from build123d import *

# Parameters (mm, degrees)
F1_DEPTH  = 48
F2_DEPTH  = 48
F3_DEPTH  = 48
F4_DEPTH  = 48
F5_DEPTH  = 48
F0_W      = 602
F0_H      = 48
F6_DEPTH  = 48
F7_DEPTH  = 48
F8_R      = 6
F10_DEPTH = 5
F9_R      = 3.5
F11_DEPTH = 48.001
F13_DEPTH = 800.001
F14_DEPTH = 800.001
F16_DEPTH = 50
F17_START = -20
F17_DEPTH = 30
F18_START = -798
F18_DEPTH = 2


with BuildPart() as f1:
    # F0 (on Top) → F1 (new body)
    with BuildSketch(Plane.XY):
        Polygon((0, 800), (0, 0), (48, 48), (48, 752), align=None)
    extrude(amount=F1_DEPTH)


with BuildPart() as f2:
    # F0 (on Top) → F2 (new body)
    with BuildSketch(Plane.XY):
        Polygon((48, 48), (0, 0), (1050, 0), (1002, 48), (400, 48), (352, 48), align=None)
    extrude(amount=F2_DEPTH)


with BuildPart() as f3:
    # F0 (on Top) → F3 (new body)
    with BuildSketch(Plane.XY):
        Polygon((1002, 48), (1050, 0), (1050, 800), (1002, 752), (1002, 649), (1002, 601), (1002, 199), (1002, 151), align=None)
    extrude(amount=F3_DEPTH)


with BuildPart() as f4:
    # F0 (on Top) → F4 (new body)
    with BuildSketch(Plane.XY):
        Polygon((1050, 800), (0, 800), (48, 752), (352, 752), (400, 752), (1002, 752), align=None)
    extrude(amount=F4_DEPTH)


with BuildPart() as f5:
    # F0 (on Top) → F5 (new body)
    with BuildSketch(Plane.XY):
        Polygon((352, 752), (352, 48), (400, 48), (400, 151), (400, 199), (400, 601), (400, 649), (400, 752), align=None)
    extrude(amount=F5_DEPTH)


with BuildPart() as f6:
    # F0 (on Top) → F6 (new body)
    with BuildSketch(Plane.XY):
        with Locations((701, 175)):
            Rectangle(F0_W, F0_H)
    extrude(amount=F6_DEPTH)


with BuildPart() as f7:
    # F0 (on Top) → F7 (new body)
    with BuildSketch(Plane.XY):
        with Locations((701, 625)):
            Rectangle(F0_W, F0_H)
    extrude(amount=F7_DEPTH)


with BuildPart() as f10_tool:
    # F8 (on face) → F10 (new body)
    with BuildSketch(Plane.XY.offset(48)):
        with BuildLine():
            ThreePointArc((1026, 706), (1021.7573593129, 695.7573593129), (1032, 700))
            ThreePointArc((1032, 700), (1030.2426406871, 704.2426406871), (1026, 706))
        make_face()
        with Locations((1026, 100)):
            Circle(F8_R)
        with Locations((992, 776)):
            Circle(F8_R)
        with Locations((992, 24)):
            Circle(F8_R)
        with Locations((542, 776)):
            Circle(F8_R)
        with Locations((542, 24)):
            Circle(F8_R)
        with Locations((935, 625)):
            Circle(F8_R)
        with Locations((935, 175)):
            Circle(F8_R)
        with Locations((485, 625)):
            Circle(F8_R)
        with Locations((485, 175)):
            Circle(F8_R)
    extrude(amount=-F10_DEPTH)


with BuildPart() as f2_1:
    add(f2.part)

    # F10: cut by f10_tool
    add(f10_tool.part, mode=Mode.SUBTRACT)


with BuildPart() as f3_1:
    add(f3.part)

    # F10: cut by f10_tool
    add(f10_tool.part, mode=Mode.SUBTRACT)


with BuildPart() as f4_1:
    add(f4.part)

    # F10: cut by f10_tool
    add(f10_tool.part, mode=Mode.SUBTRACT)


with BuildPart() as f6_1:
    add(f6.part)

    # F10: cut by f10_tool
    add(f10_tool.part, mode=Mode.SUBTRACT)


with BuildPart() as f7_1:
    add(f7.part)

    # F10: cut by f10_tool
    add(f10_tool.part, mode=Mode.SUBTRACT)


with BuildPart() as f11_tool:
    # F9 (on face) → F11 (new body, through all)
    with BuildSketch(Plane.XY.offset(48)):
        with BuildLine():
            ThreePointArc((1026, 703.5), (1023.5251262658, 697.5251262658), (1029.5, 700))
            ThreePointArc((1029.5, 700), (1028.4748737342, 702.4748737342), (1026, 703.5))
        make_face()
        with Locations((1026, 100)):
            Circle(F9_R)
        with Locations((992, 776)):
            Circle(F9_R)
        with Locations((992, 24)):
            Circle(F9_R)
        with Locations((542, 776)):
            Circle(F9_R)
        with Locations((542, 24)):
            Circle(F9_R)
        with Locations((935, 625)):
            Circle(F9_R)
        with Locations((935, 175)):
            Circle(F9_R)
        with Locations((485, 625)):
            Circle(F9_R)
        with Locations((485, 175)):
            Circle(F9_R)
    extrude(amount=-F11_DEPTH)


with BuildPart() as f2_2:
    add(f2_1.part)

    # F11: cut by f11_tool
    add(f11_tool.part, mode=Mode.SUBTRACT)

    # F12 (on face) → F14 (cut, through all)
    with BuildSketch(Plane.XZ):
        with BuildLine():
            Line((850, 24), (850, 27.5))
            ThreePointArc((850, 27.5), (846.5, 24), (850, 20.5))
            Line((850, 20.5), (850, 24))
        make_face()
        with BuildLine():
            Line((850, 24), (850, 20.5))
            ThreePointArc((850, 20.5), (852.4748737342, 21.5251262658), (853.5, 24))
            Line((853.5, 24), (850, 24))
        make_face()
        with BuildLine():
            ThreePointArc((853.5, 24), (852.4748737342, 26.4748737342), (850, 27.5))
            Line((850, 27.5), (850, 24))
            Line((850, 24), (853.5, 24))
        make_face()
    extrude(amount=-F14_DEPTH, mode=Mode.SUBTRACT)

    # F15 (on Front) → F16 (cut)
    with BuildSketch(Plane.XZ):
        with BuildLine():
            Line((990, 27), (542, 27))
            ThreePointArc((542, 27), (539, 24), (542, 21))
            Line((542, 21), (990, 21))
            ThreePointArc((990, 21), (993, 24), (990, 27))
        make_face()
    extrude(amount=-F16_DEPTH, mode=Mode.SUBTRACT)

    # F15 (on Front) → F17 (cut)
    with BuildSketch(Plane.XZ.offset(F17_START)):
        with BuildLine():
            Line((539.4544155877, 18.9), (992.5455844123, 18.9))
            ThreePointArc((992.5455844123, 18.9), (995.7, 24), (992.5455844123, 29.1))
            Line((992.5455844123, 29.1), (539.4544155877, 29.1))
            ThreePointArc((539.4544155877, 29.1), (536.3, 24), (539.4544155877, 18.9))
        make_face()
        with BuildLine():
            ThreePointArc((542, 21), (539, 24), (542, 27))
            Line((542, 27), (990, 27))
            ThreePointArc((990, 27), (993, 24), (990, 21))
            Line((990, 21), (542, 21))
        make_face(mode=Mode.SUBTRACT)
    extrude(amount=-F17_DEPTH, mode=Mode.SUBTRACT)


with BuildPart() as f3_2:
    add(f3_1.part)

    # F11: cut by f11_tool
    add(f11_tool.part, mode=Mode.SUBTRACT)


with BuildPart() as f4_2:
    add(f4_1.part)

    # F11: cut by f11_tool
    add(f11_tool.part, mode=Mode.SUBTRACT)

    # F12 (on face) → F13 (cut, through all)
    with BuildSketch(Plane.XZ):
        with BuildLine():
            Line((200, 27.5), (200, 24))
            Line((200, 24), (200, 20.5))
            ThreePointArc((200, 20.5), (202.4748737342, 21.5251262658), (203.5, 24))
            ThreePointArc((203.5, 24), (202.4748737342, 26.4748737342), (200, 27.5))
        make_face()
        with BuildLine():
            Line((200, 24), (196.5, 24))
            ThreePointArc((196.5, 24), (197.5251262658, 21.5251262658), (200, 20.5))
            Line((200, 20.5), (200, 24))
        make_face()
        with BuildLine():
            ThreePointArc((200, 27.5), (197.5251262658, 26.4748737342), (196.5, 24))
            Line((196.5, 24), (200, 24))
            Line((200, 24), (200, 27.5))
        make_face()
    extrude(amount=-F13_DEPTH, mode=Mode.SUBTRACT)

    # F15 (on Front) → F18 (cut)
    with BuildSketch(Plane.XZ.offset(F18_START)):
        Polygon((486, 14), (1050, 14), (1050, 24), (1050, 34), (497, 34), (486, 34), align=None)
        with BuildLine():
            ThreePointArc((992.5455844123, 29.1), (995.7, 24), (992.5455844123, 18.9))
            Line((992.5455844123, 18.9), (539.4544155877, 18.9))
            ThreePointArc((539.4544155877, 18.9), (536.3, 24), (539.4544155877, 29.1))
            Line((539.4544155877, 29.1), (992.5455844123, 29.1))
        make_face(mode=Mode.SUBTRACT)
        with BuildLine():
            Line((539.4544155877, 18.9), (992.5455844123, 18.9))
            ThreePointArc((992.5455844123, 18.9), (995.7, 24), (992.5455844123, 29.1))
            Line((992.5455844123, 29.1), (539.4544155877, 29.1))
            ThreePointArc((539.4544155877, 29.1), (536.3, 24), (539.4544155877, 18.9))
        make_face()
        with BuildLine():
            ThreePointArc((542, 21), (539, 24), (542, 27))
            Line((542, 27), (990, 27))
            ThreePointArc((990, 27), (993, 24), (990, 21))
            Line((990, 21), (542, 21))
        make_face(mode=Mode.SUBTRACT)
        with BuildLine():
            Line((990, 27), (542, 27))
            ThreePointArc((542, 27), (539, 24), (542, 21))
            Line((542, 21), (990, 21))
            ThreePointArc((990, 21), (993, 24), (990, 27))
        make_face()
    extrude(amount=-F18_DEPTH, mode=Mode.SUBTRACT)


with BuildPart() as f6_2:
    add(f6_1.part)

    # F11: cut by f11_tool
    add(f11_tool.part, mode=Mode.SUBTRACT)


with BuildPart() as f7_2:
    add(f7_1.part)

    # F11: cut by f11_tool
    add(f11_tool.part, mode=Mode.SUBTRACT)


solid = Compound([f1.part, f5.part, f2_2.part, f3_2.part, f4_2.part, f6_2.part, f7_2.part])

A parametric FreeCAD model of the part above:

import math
import FreeCAD as App
import Part
import Sketcher
Q = App.Units.Quantity

doc = App.newDocument("Part")
body = doc.addObject("PartDesign::Body", "Body")

sketch1 = body.newObject("Sketcher::SketchObject", "Sketch")
sketch1.AttachmentSupport = (doc.getObject("XY_Plane"), [""])
sketch1.MapMode = "FlatFace"
sketch1.addGeometry([
    Part.LineSegment(App.Vector(0, 800, 0), App.Vector(0, 0, 0)),
    Part.LineSegment(App.Vector(0, 0, 0), App.Vector(48, 48, 0)),
    Part.LineSegment(App.Vector(48, 48, 0), App.Vector(48, 752, 0)),
    Part.LineSegment(App.Vector(48, 752, 0), App.Vector(0, 800, 0)),
], False)
sketch1.addConstraint([
    Sketcher.Constraint("Coincident", 0, 2, 1, 1),
    Sketcher.Constraint("Coincident", 1, 2, 2, 1),
    Sketcher.Constraint("Coincident", 2, 2, 3, 1),
    Sketcher.Constraint("Coincident", 3, 2, 0, 1),
    Sketcher.Constraint("Vertical", 0),
    Sketcher.Constraint("Vertical", 2),
    Sketcher.Constraint("Coincident", 0, 2, -1, 1),
    Sketcher.Constraint("Perpendicular", 1, 3),
    Sketcher.Constraint("Equal", 1, 3),
    Sketcher.Constraint("DistanceY", 0, 2, 0, 1, Q("800 mm")),
    Sketcher.Constraint("DistanceY", 2, 1, 2, 2, Q("704 mm")),
])
pad1 = body.newObject("PartDesign::Pad", "Pad")
pad1.Profile = sketch1
pad1.Length = 48
body2 = doc.addObject("PartDesign::Body", "Body001")

sketch2 = body2.newObject("Sketcher::SketchObject", "Sketch001")
sketch2.AttachmentSupport = (doc.getObject("XY_Plane001"), [""])
sketch2.MapMode = "FlatFace"
sketch2.addGeometry([
    Part.LineSegment(App.Vector(48, 48, 0), App.Vector(0, 0, 0)),
    Part.LineSegment(App.Vector(0, 0, 0), App.Vector(1050, 0, 0)),
    Part.LineSegment(App.Vector(1050, 0, 0), App.Vector(1002, 48, 0)),
    Part.LineSegment(App.Vector(1002, 48, 0), App.Vector(48, 48, 0)),
], False)
sketch2.addConstraint([
    Sketcher.Constraint("Coincident", 0, 2, 1, 1),
    Sketcher.Constraint("Coincident", 1, 2, 2, 1),
    Sketcher.Constraint("Coincident", 2, 2, 3, 1),
    Sketcher.Constraint("Coincident", 3, 2, 0, 1),
    Sketcher.Constraint("Horizontal", 1),
    Sketcher.Constraint("Horizontal", 3),
    Sketcher.Constraint("Coincident", 0, 2, -1, 1),
    Sketcher.Constraint("Perpendicular", 0, 2),
    Sketcher.Constraint("Equal", 0, 2),
    Sketcher.Constraint("DistanceX", 1, 1, 1, 2, Q("1050 mm")),
    Sketcher.Constraint("DistanceX", 3, 2, 3, 1, Q("954 mm")),
])
pad2 = body2.newObject("PartDesign::Pad", "Pad001")
pad2.Profile = sketch2
pad2.Length = 48
body3 = doc.addObject("PartDesign::Body", "Body002")

sketch3 = body3.newObject("Sketcher::SketchObject", "Sketch002")
sketch3.AttachmentSupport = (doc.getObject("XY_Plane002"), [""])
sketch3.MapMode = "FlatFace"
sketch3.addGeometry([
    Part.LineSegment(App.Vector(1002, 48, 0), App.Vector(1050, 0, 0)),
    Part.LineSegment(App.Vector(1050, 0, 0), App.Vector(1050, 800, 0)),
    Part.LineSegment(App.Vector(1050, 800, 0), App.Vector(1002, 752, 0)),
    Part.LineSegment(App.Vector(1002, 752, 0), App.Vector(1002, 48, 0)),
], False)
sketch3.addConstraint([
    Sketcher.Constraint("Coincident", 0, 2, 1, 1),
    Sketcher.Constraint("Coincident", 1, 2, 2, 1),
    Sketcher.Constraint("Coincident", 2, 2, 3, 1),
    Sketcher.Constraint("Coincident", 3, 2, 0, 1),
    Sketcher.Constraint("Vertical", 1),
    Sketcher.Constraint("Vertical", 3),
    Sketcher.Constraint("PointOnObject", 0, 2, -1),
    Sketcher.Constraint("Perpendicular", 0, 2),
    Sketcher.Constraint("Equal", 0, 2),
    Sketcher.Constraint("DistanceY", 1, 1, 1, 2, Q("800 mm")),
    Sketcher.Constraint("DistanceY", 3, 2, 3, 1, Q("704 mm")),
    Sketcher.Constraint("DistanceX", -1, 1, 0, 2, Q("1050 mm")),
])
pad3 = body3.newObject("PartDesign::Pad", "Pad002")
pad3.Profile = sketch3
pad3.Length = 48
body4 = doc.addObject("PartDesign::Body", "Body003")

sketch4 = body4.newObject("Sketcher::SketchObject", "Sketch003")
sketch4.AttachmentSupport = (doc.getObject("XY_Plane003"), [""])
sketch4.MapMode = "FlatFace"
sketch4.addGeometry([
    Part.LineSegment(App.Vector(1050, 800, 0), App.Vector(0, 800, 0)),
    Part.LineSegment(App.Vector(0, 800, 0), App.Vector(48, 752, 0)),
    Part.LineSegment(App.Vector(48, 752, 0), App.Vector(1002, 752, 0)),
    Part.LineSegment(App.Vector(1002, 752, 0), App.Vector(1050, 800, 0)),
], False)
sketch4.addConstraint([
    Sketcher.Constraint("Coincident", 0, 2, 1, 1),
    Sketcher.Constraint("Coincident", 1, 2, 2, 1),
    Sketcher.Constraint("Coincident", 2, 2, 3, 1),
    Sketcher.Constraint("Coincident", 3, 2, 0, 1),
    Sketcher.Constraint("Horizontal", 0),
    Sketcher.Constraint("Horizontal", 2),
    Sketcher.Constraint("PointOnObject", 0, 2, -2),
    Sketcher.Constraint("Perpendicular", 1, 3),
    Sketcher.Constraint("Equal", 1, 3),
    Sketcher.Constraint("DistanceX", 0, 2, 0, 1, Q("1050 mm")),
    Sketcher.Constraint("DistanceX", 2, 1, 2, 2, Q("954 mm")),
    Sketcher.Constraint("DistanceY", -1, 1, 0, 2, Q("800 mm")),
])
pad4 = body4.newObject("PartDesign::Pad", "Pad003")
pad4.Profile = sketch4
pad4.Length = 48
body5 = doc.addObject("PartDesign::Body", "Body004")

sketch5 = body5.newObject("Sketcher::SketchObject", "Sketch004")
sketch5.AttachmentSupport = (doc.getObject("XY_Plane004"), [""])
sketch5.MapMode = "FlatFace"
sketch5.addGeometry([
    Part.LineSegment(App.Vector(352, 752, 0), App.Vector(352, 48, 0)),
    Part.LineSegment(App.Vector(352, 48, 0), App.Vector(400, 48, 0)),
    Part.LineSegment(App.Vector(400, 48, 0), App.Vector(400, 752, 0)),
    Part.LineSegment(App.Vector(400, 752, 0), App.Vector(352, 752, 0)),
], False)
sketch5.addConstraint([
    Sketcher.Constraint("Coincident", 0, 2, 1, 1),
    Sketcher.Constraint("Coincident", 1, 2, 2, 1),
    Sketcher.Constraint("Coincident", 2, 2, 3, 1),
    Sketcher.Constraint("Coincident", 3, 2, 0, 1),
    Sketcher.Constraint("Vertical", 0),
    Sketcher.Constraint("Horizontal", 1),
    Sketcher.Constraint("Vertical", 2),
    Sketcher.Constraint("Horizontal", 3),
    Sketcher.Constraint("DistanceX", 1, 1, 1, 2, Q("48 mm")),
    Sketcher.Constraint("DistanceY", 0, 2, 0, 1, Q("704 mm")),
    Sketcher.Constraint("DistanceX", -1, 1, 0, 2, Q("352 mm")),
    Sketcher.Constraint("DistanceY", -1, 1, 0, 2, Q("48 mm")),
])
pad5 = body5.newObject("PartDesign::Pad", "Pad004")
pad5.Profile = sketch5
pad5.Length = 48
body6 = doc.addObject("PartDesign::Body", "Body005")

sketch6 = body6.newObject("Sketcher::SketchObject", "Sketch005")
sketch6.AttachmentSupport = (doc.getObject("XY_Plane005"), [""])
sketch6.MapMode = "FlatFace"
sketch6.addGeometry([
    Part.LineSegment(App.Vector(400, 199, 0), App.Vector(400, 151, 0)),
    Part.LineSegment(App.Vector(400, 151, 0), App.Vector(1002, 151, 0)),
    Part.LineSegment(App.Vector(1002, 151, 0), App.Vector(1002, 199, 0)),
    Part.LineSegment(App.Vector(1002, 199, 0), App.Vector(400, 199, 0)),
], False)
sketch6.addConstraint([
    Sketcher.Constraint("Coincident", 0, 2, 1, 1),
    Sketcher.Constraint("Coincident", 1, 2, 2, 1),
    Sketcher.Constraint("Coincident", 2, 2, 3, 1),
    Sketcher.Constraint("Coincident", 3, 2, 0, 1),
    Sketcher.Constraint("Vertical", 0),
    Sketcher.Constraint("Horizontal", 1),
    Sketcher.Constraint("Vertical", 2),
    Sketcher.Constraint("Horizontal", 3),
    Sketcher.Constraint("DistanceX", 1, 1, 1, 2, Q("602 mm")),
    Sketcher.Constraint("DistanceY", 0, 2, 0, 1, Q("48 mm")),
    Sketcher.Constraint("DistanceX", -1, 1, 0, 2, Q("400 mm")),
    Sketcher.Constraint("DistanceY", -1, 1, 0, 2, Q("151 mm")),
])
pad6 = body6.newObject("PartDesign::Pad", "Pad005")
pad6.Profile = sketch6
pad6.Length = 48
body7 = doc.addObject("PartDesign::Body", "Body006")

sketch7 = body7.newObject("Sketcher::SketchObject", "Sketch006")
sketch7.AttachmentSupport = (doc.getObject("XY_Plane006"), [""])
sketch7.MapMode = "FlatFace"
sketch7.addGeometry([
    Part.LineSegment(App.Vector(400, 649, 0), App.Vector(400, 601, 0)),
    Part.LineSegment(App.Vector(400, 601, 0), App.Vector(1002, 601, 0)),
    Part.LineSegment(App.Vector(1002, 601, 0), App.Vector(1002, 649, 0)),
    Part.LineSegment(App.Vector(1002, 649, 0), App.Vector(400, 649, 0)),
], False)
sketch7.addConstraint([
    Sketcher.Constraint("Coincident", 0, 2, 1, 1),
    Sketcher.Constraint("Coincident", 1, 2, 2, 1),
    Sketcher.Constraint("Coincident", 2, 2, 3, 1),
    Sketcher.Constraint("Coincident", 3, 2, 0, 1),
    Sketcher.Constraint("Vertical", 0),
    Sketcher.Constraint("Horizontal", 1),
    Sketcher.Constraint("Vertical", 2),
    Sketcher.Constraint("Horizontal", 3),
    Sketcher.Constraint("DistanceX", 1, 1, 1, 2, Q("602 mm")),
    Sketcher.Constraint("DistanceY", 0, 2, 0, 1, Q("48 mm")),
    Sketcher.Constraint("DistanceX", -1, 1, 0, 2, Q("400 mm")),
    Sketcher.Constraint("DistanceY", -1, 1, 0, 2, Q("601 mm")),
])
pad7 = body7.newObject("PartDesign::Pad", "Pad006")
pad7.Profile = sketch7
pad7.Length = 48
body8 = doc.addObject("PartDesign::Body", "Body007")
body8.AllowCompound = True

sketch8 = body8.newObject("Sketcher::SketchObject", "Sketch007")
sketch8.AttachmentSupport = (doc.getObject("XY_Plane007"), [""])
sketch8.MapMode = "FlatFace"
sketch8.AttachmentOffset = App.Placement(App.Vector(0, 0, 48), App.Rotation())
sketch8.addGeometry([
    Part.ArcOfCircle(Part.Circle(App.Vector(1026, 700, 0), App.Vector(0, 0, 1), 6), math.radians(90), math.radians(360)),
    Part.ArcOfCircle(Part.Circle(App.Vector(1026, 700, 0), App.Vector(0, 0, 1), 6), math.radians(0), math.radians(90)),
    Part.Circle(App.Vector(1026, 100, 0), App.Vector(0, 0, 1), 6),
    Part.Circle(App.Vector(992, 776, 0), App.Vector(0, 0, 1), 6),
    Part.Circle(App.Vector(992, 24, 0), App.Vector(0, 0, 1), 6),
    Part.Circle(App.Vector(542, 776, 0), App.Vector(0, 0, 1), 6),
    Part.Circle(App.Vector(542, 24, 0), App.Vector(0, 0, 1), 6),
    Part.Circle(App.Vector(935, 625, 0), App.Vector(0, 0, 1), 6),
    Part.Circle(App.Vector(935, 175, 0), App.Vector(0, 0, 1), 6),
    Part.Circle(App.Vector(485, 625, 0), App.Vector(0, 0, 1), 6),
    Part.Circle(App.Vector(485, 175, 0), App.Vector(0, 0, 1), 6),
], False)
sketch8.addConstraint([
    Sketcher.Constraint("Tangent", 0, 1, 1, 2),
    Sketcher.Constraint("Coincident", 1, 1, 0, 2),
    Sketcher.Constraint("Equal", 1, 2),
    Sketcher.Constraint("Equal", 2, 3),
    Sketcher.Constraint("Equal", 3, 4),
    Sketcher.Constraint("Equal", 4, 5),
    Sketcher.Constraint("Equal", 5, 6),
    Sketcher.Constraint("Equal", 6, 7),
    Sketcher.Constraint("Equal", 7, 8),
    Sketcher.Constraint("Equal", 8, 9),
    Sketcher.Constraint("Equal", 9, 10),
    Sketcher.Constraint("Horizontal", 3, 3, 5, 3),
    Sketcher.Constraint("Horizontal", 4, 3, 6, 3),
    Sketcher.Constraint("Horizontal", 7, 3, 9, 3),
    Sketcher.Constraint("Horizontal", 8, 3, 10, 3),
    Sketcher.Constraint("Horizontal", 0, 3, 1, 1),
    Sketcher.Constraint("Vertical", 1, 3, 2, 3),
    Sketcher.Constraint("Vertical", 3, 3, 4, 3),
    Sketcher.Constraint("Vertical", 5, 3, 6, 3),
    Sketcher.Constraint("Vertical", 7, 3, 8, 3),
    Sketcher.Constraint("Vertical", 9, 3, 10, 3),
    Sketcher.Constraint("Vertical", 2, 3, 0, 1),
    Sketcher.Constraint("Diameter", 2, Q("12 mm")),
    Sketcher.Constraint("DistanceX", -1, 1, 0, 3, Q("1026 mm")),
    Sketcher.Constraint("DistanceY", -1, 1, 0, 3, Q("700 mm")),
    Sketcher.Constraint("DistanceY", -1, 1, 2, 3, Q("100 mm")),
    Sketcher.Constraint("DistanceX", -1, 1, 3, 3, Q("992 mm")),
    Sketcher.Constraint("DistanceY", -1, 1, 3, 3, Q("776 mm")),
    Sketcher.Constraint("DistanceY", -1, 1, 4, 3, Q("24 mm")),
    Sketcher.Constraint("DistanceX", -1, 1, 5, 3, Q("542 mm")),
    Sketcher.Constraint("DistanceX", -1, 1, 7, 3, Q("935 mm")),
    Sketcher.Constraint("DistanceY", -1, 1, 7, 3, Q("625 mm")),
    Sketcher.Constraint("DistanceY", -1, 1, 8, 3, Q("175 mm")),
    Sketcher.Constraint("DistanceX", -1, 1, 9, 3, Q("485 mm")),
])
pad8 = body8.newObject("PartDesign::Pad", "Pad007")
pad8.Profile = sketch8
pad8.Length = 5
pad8.Reversed = True
doc.recompute()

body9 = doc.addObject("PartDesign::Body", "Body008")
body9.BaseFeature = body8
boolean = body2.newObject("PartDesign::Boolean", "Boolean")
boolean.Type = "Cut"
boolean.addObjects([body9])
doc.recompute()

body10 = doc.addObject("PartDesign::Body", "Body009")
body10.BaseFeature = body8
boolean2 = body3.newObject("PartDesign::Boolean", "Boolean001")
boolean2.Type = "Cut"
boolean2.addObjects([body10])
doc.recompute()

body11 = doc.addObject("PartDesign::Body", "Body010")
body11.BaseFeature = body8
boolean3 = body4.newObject("PartDesign::Boolean", "Boolean002")
boolean3.Type = "Cut"
boolean3.addObjects([body11])
doc.recompute()

body12 = doc.addObject("PartDesign::Body", "Body011")
body12.BaseFeature = body8
boolean4 = body6.newObject("PartDesign::Boolean", "Boolean003")
boolean4.Type = "Cut"
boolean4.addObjects([body12])
doc.recompute()

boolean5 = body7.newObject("PartDesign::Boolean", "Boolean004")
boolean5.Type = "Cut"
boolean5.addObjects([body8])
body13 = doc.addObject("PartDesign::Body", "Body012")
body13.AllowCompound = True

sketch9 = body13.newObject("Sketcher::SketchObject", "Sketch008")
sketch9.AttachmentSupport = (doc.getObject("XY_Plane012"), [""])
sketch9.MapMode = "FlatFace"
sketch9.AttachmentOffset = App.Placement(App.Vector(0, 0, 48), App.Rotation())
sketch9.addGeometry([
    Part.ArcOfCircle(Part.Circle(App.Vector(1026, 700, 0), App.Vector(0, 0, 1), 3.5), math.radians(90), math.radians(360)),
    Part.ArcOfCircle(Part.Circle(App.Vector(1026, 700, 0), App.Vector(0, 0, 1), 3.5), math.radians(0), math.radians(90)),
    Part.Circle(App.Vector(1026, 100, 0), App.Vector(0, 0, 1), 3.5),
    Part.Circle(App.Vector(992, 776, 0), App.Vector(0, 0, 1), 3.5),
    Part.Circle(App.Vector(992, 24, 0), App.Vector(0, 0, 1), 3.5),
    Part.Circle(App.Vector(542, 776, 0), App.Vector(0, 0, 1), 3.5),
    Part.Circle(App.Vector(542, 24, 0), App.Vector(0, 0, 1), 3.5),
    Part.Circle(App.Vector(935, 625, 0), App.Vector(0, 0, 1), 3.5),
    Part.Circle(App.Vector(935, 175, 0), App.Vector(0, 0, 1), 3.5),
    Part.Circle(App.Vector(485, 625, 0), App.Vector(0, 0, 1), 3.5),
    Part.Circle(App.Vector(485, 175, 0), App.Vector(0, 0, 1), 3.5),
], False)
sketch9.addConstraint([
    Sketcher.Constraint("Tangent", 0, 1, 1, 2),
    Sketcher.Constraint("Coincident", 1, 1, 0, 2),
    Sketcher.Constraint("Equal", 1, 2),
    Sketcher.Constraint("Equal", 2, 3),
    Sketcher.Constraint("Equal", 3, 4),
    Sketcher.Constraint("Equal", 4, 5),
    Sketcher.Constraint("Equal", 5, 6),
    Sketcher.Constraint("Equal", 6, 7),
    Sketcher.Constraint("Equal", 7, 8),
    Sketcher.Constraint("Equal", 8, 9),
    Sketcher.Constraint("Equal", 9, 10),
    Sketcher.Constraint("Horizontal", 3, 3, 5, 3),
    Sketcher.Constraint("Horizontal", 4, 3, 6, 3),
    Sketcher.Constraint("Horizontal", 7, 3, 9, 3),
    Sketcher.Constraint("Horizontal", 8, 3, 10, 3),
    Sketcher.Constraint("Horizontal", 0, 3, 1, 1),
    Sketcher.Constraint("Vertical", 1, 3, 2, 3),
    Sketcher.Constraint("Vertical", 3, 3, 4, 3),
    Sketcher.Constraint("Vertical", 5, 3, 6, 3),
    Sketcher.Constraint("Vertical", 7, 3, 8, 3),
    Sketcher.Constraint("Vertical", 9, 3, 10, 3),
    Sketcher.Constraint("Vertical", 2, 3, 0, 1),
    Sketcher.Constraint("Diameter", 2, Q("7 mm")),
    Sketcher.Constraint("DistanceX", -1, 1, 0, 3, Q("1026 mm")),
    Sketcher.Constraint("DistanceY", -1, 1, 0, 3, Q("700 mm")),
    Sketcher.Constraint("DistanceY", -1, 1, 2, 3, Q("100 mm")),
    Sketcher.Constraint("DistanceX", -1, 1, 3, 3, Q("992 mm")),
    Sketcher.Constraint("DistanceY", -1, 1, 3, 3, Q("776 mm")),
    Sketcher.Constraint("DistanceY", -1, 1, 4, 3, Q("24 mm")),
    Sketcher.Constraint("DistanceX", -1, 1, 5, 3, Q("542 mm")),
    Sketcher.Constraint("DistanceX", -1, 1, 7, 3, Q("935 mm")),
    Sketcher.Constraint("DistanceY", -1, 1, 7, 3, Q("625 mm")),
    Sketcher.Constraint("DistanceY", -1, 1, 8, 3, Q("175 mm")),
    Sketcher.Constraint("DistanceX", -1, 1, 9, 3, Q("485 mm")),
])
pad9 = body13.newObject("PartDesign::Pad", "Pad008")
pad9.Profile = sketch9
pad9.Length = 48.001
pad9.Reversed = True
doc.recompute()

body14 = doc.addObject("PartDesign::Body", "Body013")
body14.BaseFeature = body13
boolean6 = body2.newObject("PartDesign::Boolean", "Boolean005")
boolean6.Type = "Cut"
boolean6.addObjects([body14])
doc.recompute()

sketch10 = body2.newObject("Sketcher::SketchObject", "Sketch009")
sketch10.AttachmentSupport = (doc.getObject("XZ_Plane001"), [""])
sketch10.MapMode = "FlatFace"
sketch10.addGeometry([
    Part.ArcOfCircle(Part.Circle(App.Vector(850, 24, 0), App.Vector(0, 0, 1), 3.5), math.radians(90), math.radians(270)),
    Part.ArcOfCircle(Part.Circle(App.Vector(850, 24, 0), App.Vector(0, 0, 1), 3.5), math.radians(-90), math.radians(0)),
    Part.ArcOfCircle(Part.Circle(App.Vector(850, 24, 0), App.Vector(0, 0, 1), 3.5), math.radians(0), math.radians(90)),
], False)
sketch10.addConstraint([
    Sketcher.Constraint("Tangent", 0, 2, 1, 1),
    Sketcher.Constraint("Tangent", 1, 2, 2, 1),
    Sketcher.Constraint("Tangent", 2, 2, 0, 1),
    Sketcher.Constraint("Horizontal", 2, 3, 1, 2),
    Sketcher.Constraint("Vertical", 2, 3, 0, 2),
    Sketcher.Constraint("Vertical", 0, 2, 2, 2),
    Sketcher.Constraint("Radius", 0, Q("3.5 mm")),
    Sketcher.Constraint("DistanceX", -1, 1, 0, 3, Q("850 mm")),
    Sketcher.Constraint("DistanceY", -1, 1, 0, 3, Q("24 mm")),
])
pocket1 = body2.newObject("PartDesign::Pocket", "Pocket")
pocket1.Profile = sketch10
pocket1.Type = "ThroughAll"

sketch11 = body2.newObject("Sketcher::SketchObject", "Sketch010")
sketch11.AttachmentSupport = (doc.getObject("XZ_Plane001"), [""])
sketch11.MapMode = "FlatFace"
sketch11.addGeometry([
    Part.LineSegment(App.Vector(990, 27, 0), App.Vector(542, 27, 0)),
    Part.ArcOfCircle(Part.Circle(App.Vector(542, 24, 0), App.Vector(0, 0, 1), 3), math.radians(90), math.radians(270)),
    Part.LineSegment(App.Vector(542, 21, 0), App.Vector(990, 21, 0)),
    Part.ArcOfCircle(Part.Circle(App.Vector(990, 24, 0), App.Vector(0, 0, 1), 3), math.radians(-90), math.radians(90)),
], False)
sketch11.addConstraint([
    Sketcher.Constraint("Tangent", 0, 2, 1, 1),
    Sketcher.Constraint("Tangent", 1, 2, 2, 1),
    Sketcher.Constraint("Tangent", 2, 2, 3, 1),
    Sketcher.Constraint("Tangent", 3, 2, 0, 1),
    Sketcher.Constraint("Horizontal", 0),
    Sketcher.Constraint("Horizontal", 2),
    Sketcher.Constraint("Radius", 1, Q("3 mm")),
    Sketcher.Constraint("DistanceX", 0, 2, 0, 1, Q("448 mm")),
    Sketcher.Constraint("DistanceX", -1, 1, 1, 3, Q("542 mm")),
    Sketcher.Constraint("DistanceY", -1, 1, 1, 3, Q("24 mm")),
])
pocket2 = body2.newObject("PartDesign::Pocket", "Pocket001")
pocket2.Profile = sketch11
pocket2.Length = 50

sketch12 = body2.newObject("Sketcher::SketchObject", "Sketch011")
sketch12.AttachmentSupport = (doc.getObject("XZ_Plane001"), [""])
sketch12.MapMode = "FlatFace"
sketch12.AttachmentOffset = App.Placement(App.Vector(0, 0, -20), App.Rotation())
sketch12.addGeometry([
    Part.LineSegment(App.Vector(539.5, 18.9, 0), App.Vector(992.5, 18.9, 0)),
    Part.ArcOfCircle(Part.Circle(App.Vector(990, 24, 0), App.Vector(0, 0, 1), 5.7), math.radians(-63), math.radians(63)),
    Part.LineSegment(App.Vector(992.5, 29.1, 0), App.Vector(539.5, 29.1, 0)),
    Part.ArcOfCircle(Part.Circle(App.Vector(542, 24, 0), App.Vector(0, 0, 1), 5.7), math.radians(117), math.radians(243)),
    Part.LineSegment(App.Vector(990, 21, 0), App.Vector(542, 21, 0)),
    Part.ArcOfCircle(Part.Circle(App.Vector(542, 24, 0), App.Vector(0, 0, 1), 3), math.radians(90), math.radians(270)),
    Part.LineSegment(App.Vector(542, 27, 0), App.Vector(990, 27, 0)),
    Part.ArcOfCircle(Part.Circle(App.Vector(990, 24, 0), App.Vector(0, 0, 1), 3), math.radians(-90), math.radians(90)),
], False)
sketch12.addConstraint([
    Sketcher.Constraint("Coincident", 0, 2, 1, 1),
    Sketcher.Constraint("Coincident", 1, 2, 2, 1),
    Sketcher.Constraint("Coincident", 2, 2, 3, 1),
    Sketcher.Constraint("Coincident", 3, 2, 0, 1),
    Sketcher.Constraint("Tangent", 4, 2, 5, 2),
    Sketcher.Constraint("Tangent", 5, 1, 6, 1),
    Sketcher.Constraint("Tangent", 6, 2, 7, 2),
    Sketcher.Constraint("Tangent", 7, 1, 4, 1),
    Sketcher.Constraint("Horizontal", 0),
    Sketcher.Constraint("Horizontal", 2),
    Sketcher.Constraint("Horizontal", 4),
    Sketcher.Constraint("Horizontal", 6),
    Sketcher.Constraint("Coincident", 5, 3, 3, 3),
    Sketcher.Constraint("Coincident", 7, 3, 1, 3),
    Sketcher.Constraint("Equal", 1, 3),
    Sketcher.Constraint("Vertical", 0, 2, 1, 2),
    Sketcher.Constraint("Radius", 5, Q("3 mm")),
    Sketcher.Constraint("Radius", 1, Q("5.7 mm")),
    Sketcher.Constraint("DistanceX", 4, 2, 4, 1, Q("448 mm")),
    Sketcher.Constraint("DistanceX", -1, 1, 1, 3, Q("990 mm")),
    Sketcher.Constraint("DistanceY", -1, 1, 1, 3, Q("24 mm")),
    Sketcher.Constraint("DistanceY", -1, 1, 0, 2, Q("18.9 mm")),
])
pocket3 = body2.newObject("PartDesign::Pocket", "Pocket002")
pocket3.Profile = sketch12
pocket3.Length = 30
doc.recompute()

body15 = doc.addObject("PartDesign::Body", "Body014")
body15.BaseFeature = body13
boolean7 = body3.newObject("PartDesign::Boolean", "Boolean006")
boolean7.Type = "Cut"
boolean7.addObjects([body15])
doc.recompute()

body16 = doc.addObject("PartDesign::Body", "Body015")
body16.BaseFeature = body13
boolean8 = body4.newObject("PartDesign::Boolean", "Boolean007")
boolean8.Type = "Cut"
boolean8.addObjects([body16])
doc.recompute()

sketch13 = body4.newObject("Sketcher::SketchObject", "Sketch012")
sketch13.AttachmentSupport = (doc.getObject("XZ_Plane003"), [""])
sketch13.MapMode = "FlatFace"
sketch13.addGeometry([
    Part.ArcOfCircle(Part.Circle(App.Vector(200, 24, 0), App.Vector(0, 0, 1), 3.5), math.radians(180), math.radians(270)),
    Part.ArcOfCircle(Part.Circle(App.Vector(200, 24, 0), App.Vector(0, 0, 1), 3.5), math.radians(-90), math.radians(0)),
    Part.ArcOfCircle(Part.Circle(App.Vector(200, 24, 0), App.Vector(0, 0, 1), 3.5), math.radians(0), math.radians(90)),
    Part.ArcOfCircle(Part.Circle(App.Vector(200, 24, 0), App.Vector(0, 0, 1), 3.5), math.radians(90), math.radians(180)),
], False)
sketch13.addConstraint([
    Sketcher.Constraint("Tangent", 0, 2, 1, 1),
    Sketcher.Constraint("Tangent", 1, 2, 2, 1),
    Sketcher.Constraint("Tangent", 2, 2, 3, 1),
    Sketcher.Constraint("Tangent", 3, 2, 0, 1),
    Sketcher.Constraint("Equal", 0, 1),
    Sketcher.Constraint("Horizontal", 3, 3, 1, 2),
    Sketcher.Constraint("Horizontal", 1, 2, 3, 2),
    Sketcher.Constraint("Vertical", 3, 3, 0, 2),
    Sketcher.Constraint("Vertical", 0, 2, 2, 2),
    Sketcher.Constraint("Radius", 0, Q("3.5 mm")),
    Sketcher.Constraint("DistanceX", -1, 1, 0, 3, Q("200 mm")),
    Sketcher.Constraint("DistanceY", -1, 1, 0, 3, Q("24 mm")),
])
pocket4 = body4.newObject("PartDesign::Pocket", "Pocket003")
pocket4.Profile = sketch13
pocket4.Type = "ThroughAll"

sketch14 = body4.newObject("Sketcher::SketchObject", "Sketch013")
sketch14.AttachmentSupport = (doc.getObject("XZ_Plane003"), [""])
sketch14.MapMode = "FlatFace"
sketch14.AttachmentOffset = App.Placement(App.Vector(0, 0, -798), App.Rotation())
sketch14.addGeometry([
    Part.LineSegment(App.Vector(486, 14, 0), App.Vector(1050, 14, 0)),
    Part.LineSegment(App.Vector(1050, 14, 0), App.Vector(1050, 34, 0)),
    Part.LineSegment(App.Vector(1050, 34, 0), App.Vector(486, 34, 0)),
    Part.LineSegment(App.Vector(486, 34, 0), App.Vector(486, 14, 0)),
], False)
sketch14.addConstraint([
    Sketcher.Constraint("Coincident", 0, 2, 1, 1),
    Sketcher.Constraint("Coincident", 1, 2, 2, 1),
    Sketcher.Constraint("Coincident", 2, 2, 3, 1),
    Sketcher.Constraint("Coincident", 3, 2, 0, 1),
    Sketcher.Constraint("Horizontal", 0),
    Sketcher.Constraint("Vertical", 1),
    Sketcher.Constraint("Horizontal", 2),
    Sketcher.Constraint("Vertical", 3),
    Sketcher.Constraint("DistanceX", 0, 1, 0, 2, Q("564 mm")),
    Sketcher.Constraint("DistanceY", 1, 1, 1, 2, Q("20 mm")),
    Sketcher.Constraint("DistanceX", -1, 1, 0, 2, Q("1050 mm")),
    Sketcher.Constraint("DistanceY", -1, 1, 0, 2, Q("14 mm")),
])
pocket5 = body4.newObject("PartDesign::Pocket", "Pocket004")
pocket5.Profile = sketch14
pocket5.Length = 2
doc.recompute()

body17 = doc.addObject("PartDesign::Body", "Body016")
body17.BaseFeature = body13
boolean9 = body6.newObject("PartDesign::Boolean", "Boolean008")
boolean9.Type = "Cut"
boolean9.addObjects([body17])
doc.recompute()

boolean10 = body7.newObject("PartDesign::Boolean", "Boolean009")
boolean10.Type = "Cut"
boolean10.addObjects([body13])

doc.recompute()
